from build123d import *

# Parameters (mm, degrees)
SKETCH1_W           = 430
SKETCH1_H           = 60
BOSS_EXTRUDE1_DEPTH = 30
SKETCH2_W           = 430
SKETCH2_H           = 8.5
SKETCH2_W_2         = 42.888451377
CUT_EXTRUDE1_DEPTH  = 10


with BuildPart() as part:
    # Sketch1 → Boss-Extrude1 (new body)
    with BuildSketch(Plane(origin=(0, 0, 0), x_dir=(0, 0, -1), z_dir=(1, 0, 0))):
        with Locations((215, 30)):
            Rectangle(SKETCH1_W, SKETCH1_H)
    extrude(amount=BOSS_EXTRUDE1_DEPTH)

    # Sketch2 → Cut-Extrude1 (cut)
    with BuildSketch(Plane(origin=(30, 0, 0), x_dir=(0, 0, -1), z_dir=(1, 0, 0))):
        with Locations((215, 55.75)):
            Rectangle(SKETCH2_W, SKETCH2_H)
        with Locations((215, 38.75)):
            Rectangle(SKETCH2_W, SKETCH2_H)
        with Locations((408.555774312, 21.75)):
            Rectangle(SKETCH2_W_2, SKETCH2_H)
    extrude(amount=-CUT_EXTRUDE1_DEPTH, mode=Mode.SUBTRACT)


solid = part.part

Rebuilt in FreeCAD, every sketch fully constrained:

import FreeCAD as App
import Part
import Sketcher

V = App.Vector
Q = App.Units.Quantity

doc = App.newDocument("Part")
params = doc.addObject("Spreadsheet::Sheet", "Params")
for row, (alias, value) in enumerate([
    ("sketch1_width", "60 mm"),
    ("sketch1_height", "430 mm"),
    ("pad1_length", "30 mm"),
    ("sketch2_height", "430 mm"),
    ("sketch2_width", "8.5 mm"),
    ("pocket1_length", "10 mm"),
], start=1):
    params.set(f"A{row}", alias)
    params.set(f"B{row}", "=" + value)
    params.setAlias(f"B{row}", alias)

body = doc.addObject("PartDesign::Body", "Body")

sketch1 = body.newObject("Sketcher::SketchObject", "Sketch")
sketch1.AttachmentSupport = (doc.getObject("YZ_Plane"), [""])
sketch1.MapMode = "FlatFace"
sketch1.addGeometry([
    Part.LineSegment(V(60, 0, 0), V(0, 0, 0)),
    Part.LineSegment(V(0, 0, 0), V(0, -430, 0)),
    Part.LineSegment(V(0, -430, 0), V(60, -430, 0)),
    Part.LineSegment(V(60, -430, 0), V(60, 0, 0)),
], False)
sketch1.addConstraint([
    Sketcher.Constraint("Coincident", 0, 2, 1, 1),
    Sketcher.Constraint("Coincident", 1, 2, 2, 1),
    Sketcher.Constraint("Coincident", 2, 2, 3, 1),
    Sketcher.Constraint("Coincident", 3, 2, 0, 1),
    Sketcher.Constraint("Horizontal", 0),
    Sketcher.Constraint("Vertical", 1),
    Sketcher.Constraint("Horizontal", 2),
    Sketcher.Constraint("Vertical", 3),
    Sketcher.Constraint("Coincident", 0, 2, -1, 1),
    Sketcher.Constraint("DistanceX", 0, 2, 0, 1, Q("60 mm")),
    Sketcher.Constraint("DistanceY", 1, 2, 1, 1, Q("430 mm")),
])
sketch1.setExpression("Constraints[9]", "Params.sketch1_width")
sketch1.setExpression("Constraints[10]", "Params.sketch1_height")
pad1 = body.newObject("PartDesign::Pad", "Pad")
pad1.Profile = sketch1
pad1.setExpression("Length", "Params.pad1_length")

sketch2 = body.newObject("Sketcher::SketchObject", "Sketch001")
sketch2.AttachmentSupport = (doc.getObject("YZ_Plane"), [""])
sketch2.MapMode = "FlatFace"
sketch2.AttachmentOffset = App.Placement(V(0, 0, 30), App.Rotation())
sketch2.addGeometry([
    Part.LineSegment(V(60, 0, 0), V(52, 0, 0)),
    Part.LineSegment(V(52, 0, 0), V(52, -430, 0)),
    Part.LineSegment(V(52, -430, 0), V(60, -430, 0)),
    Part.LineSegment(V(60, -430, 0), V(60, 0, 0)),
    Part.LineSegment(V(43, 0, 0), V(34, 0, 0)),
    Part.LineSegment(V(34, 0, 0), V(34, -430, 0)),
    Part.LineSegment(V(34, -430, 0), V(43, -430, 0)),
    Part.LineSegment(V(43, -430, 0), V(43, 0, 0)),
    Part.LineSegment(V(26, -387, 0), V(18, -387, 0)),
    Part.LineSegment(V(18, -387, 0), V(18, -430, 0)),
    Part.LineSegment(V(18, -430, 0), V(26, -430, 0)),
    Part.LineSegment(V(26, -430, 0), V(26, -387, 0)),
], False)
sketch2.addConstraint([
    Sketcher.Constraint("Coincident", 0, 2, 1, 1),
    Sketcher.Constraint("Coincident", 1, 2, 2, 1),
    Sketcher.Constraint("Coincident", 2, 2, 3, 1),
    Sketcher.Constraint("Coincident", 3, 2, 0, 1),
    Sketcher.Constraint("Coincident", 4, 2, 5, 1),
    Sketcher.Constraint("Coincident", 5, 2, 6, 1),
    Sketcher.Constraint("Coincident", 6, 2, 7, 1),
    Sketcher.Constraint("Coincident", 7, 2, 4, 1),
    Sketcher.Constraint("Coincident", 8, 2, 9, 1),
    Sketcher.Constraint("Coincident", 9, 2, 10, 1),
    Sketcher.Constraint("Coincident", 10, 2, 11, 1),
    Sketcher.Constraint("Coincident", 11, 2, 8, 1),
    Sketcher.Constraint("Horizontal", 0),
    Sketcher.Constraint("Vertical", 1),
    Sketcher.Constraint("Horizontal", 2),
    Sketcher.Constraint("Vertical", 3),
    Sketcher.Constraint("Horizontal", 4),
    Sketcher.Constraint("Vertical", 5),
    Sketcher.Constraint("Horizontal", 6),
    Sketcher.Constraint("Vertical", 7),
    Sketcher.Constraint("Horizontal", 8),
    Sketcher.Constraint("Vertical", 9),
    Sketcher.Constraint("Horizontal", 10),
    Sketcher.Constraint("Vertical", 11),
    Sketcher.Constraint("PointOnObject", 0, 2, -1),
    Sketcher.Constraint("PointOnObject", 4, 2, -1),
    Sketcher.Constraint("Horizontal", 2, 2, 5, 2),
    Sketcher.Constraint("Horizontal", 6, 2, 9, 2),
    Sketcher.Constraint("Equal", 2, 4),
    Sketcher.Constraint("Equal", 6, 8),
    Sketcher.Constraint("DistanceY", 1, 2, 1, 1, Q("430 mm")),
    Sketcher.Constraint("DistanceX", 0, 2, 0, 1, Q("8.5 mm")),
    Sketcher.Constraint("DistanceX", -1, 1, 2, 2, Q("60 mm")),
    Sketcher.Constraint("DistanceX", -1, 1, 6, 2, Q("43 mm")),
    Sketcher.Constraint("DistanceX", -1, 1, 10, 2, Q("26 mm")),
    Sketcher.Constraint("DistanceY", 9, 2, 9, 1, Q("42.888451 mm")),
])
sketch2.setExpression("Constraints[30]", "Params.sketch2_height")
sketch2.setExpression("Constraints[31]", "Params.sketch2_width")
pocket1 = body.newObject("PartDesign::Pocket", "Pocket")
pocket1.Profile = sketch2
pocket1.setExpression("Length", "Params.pocket1_length")

doc.recompute()
